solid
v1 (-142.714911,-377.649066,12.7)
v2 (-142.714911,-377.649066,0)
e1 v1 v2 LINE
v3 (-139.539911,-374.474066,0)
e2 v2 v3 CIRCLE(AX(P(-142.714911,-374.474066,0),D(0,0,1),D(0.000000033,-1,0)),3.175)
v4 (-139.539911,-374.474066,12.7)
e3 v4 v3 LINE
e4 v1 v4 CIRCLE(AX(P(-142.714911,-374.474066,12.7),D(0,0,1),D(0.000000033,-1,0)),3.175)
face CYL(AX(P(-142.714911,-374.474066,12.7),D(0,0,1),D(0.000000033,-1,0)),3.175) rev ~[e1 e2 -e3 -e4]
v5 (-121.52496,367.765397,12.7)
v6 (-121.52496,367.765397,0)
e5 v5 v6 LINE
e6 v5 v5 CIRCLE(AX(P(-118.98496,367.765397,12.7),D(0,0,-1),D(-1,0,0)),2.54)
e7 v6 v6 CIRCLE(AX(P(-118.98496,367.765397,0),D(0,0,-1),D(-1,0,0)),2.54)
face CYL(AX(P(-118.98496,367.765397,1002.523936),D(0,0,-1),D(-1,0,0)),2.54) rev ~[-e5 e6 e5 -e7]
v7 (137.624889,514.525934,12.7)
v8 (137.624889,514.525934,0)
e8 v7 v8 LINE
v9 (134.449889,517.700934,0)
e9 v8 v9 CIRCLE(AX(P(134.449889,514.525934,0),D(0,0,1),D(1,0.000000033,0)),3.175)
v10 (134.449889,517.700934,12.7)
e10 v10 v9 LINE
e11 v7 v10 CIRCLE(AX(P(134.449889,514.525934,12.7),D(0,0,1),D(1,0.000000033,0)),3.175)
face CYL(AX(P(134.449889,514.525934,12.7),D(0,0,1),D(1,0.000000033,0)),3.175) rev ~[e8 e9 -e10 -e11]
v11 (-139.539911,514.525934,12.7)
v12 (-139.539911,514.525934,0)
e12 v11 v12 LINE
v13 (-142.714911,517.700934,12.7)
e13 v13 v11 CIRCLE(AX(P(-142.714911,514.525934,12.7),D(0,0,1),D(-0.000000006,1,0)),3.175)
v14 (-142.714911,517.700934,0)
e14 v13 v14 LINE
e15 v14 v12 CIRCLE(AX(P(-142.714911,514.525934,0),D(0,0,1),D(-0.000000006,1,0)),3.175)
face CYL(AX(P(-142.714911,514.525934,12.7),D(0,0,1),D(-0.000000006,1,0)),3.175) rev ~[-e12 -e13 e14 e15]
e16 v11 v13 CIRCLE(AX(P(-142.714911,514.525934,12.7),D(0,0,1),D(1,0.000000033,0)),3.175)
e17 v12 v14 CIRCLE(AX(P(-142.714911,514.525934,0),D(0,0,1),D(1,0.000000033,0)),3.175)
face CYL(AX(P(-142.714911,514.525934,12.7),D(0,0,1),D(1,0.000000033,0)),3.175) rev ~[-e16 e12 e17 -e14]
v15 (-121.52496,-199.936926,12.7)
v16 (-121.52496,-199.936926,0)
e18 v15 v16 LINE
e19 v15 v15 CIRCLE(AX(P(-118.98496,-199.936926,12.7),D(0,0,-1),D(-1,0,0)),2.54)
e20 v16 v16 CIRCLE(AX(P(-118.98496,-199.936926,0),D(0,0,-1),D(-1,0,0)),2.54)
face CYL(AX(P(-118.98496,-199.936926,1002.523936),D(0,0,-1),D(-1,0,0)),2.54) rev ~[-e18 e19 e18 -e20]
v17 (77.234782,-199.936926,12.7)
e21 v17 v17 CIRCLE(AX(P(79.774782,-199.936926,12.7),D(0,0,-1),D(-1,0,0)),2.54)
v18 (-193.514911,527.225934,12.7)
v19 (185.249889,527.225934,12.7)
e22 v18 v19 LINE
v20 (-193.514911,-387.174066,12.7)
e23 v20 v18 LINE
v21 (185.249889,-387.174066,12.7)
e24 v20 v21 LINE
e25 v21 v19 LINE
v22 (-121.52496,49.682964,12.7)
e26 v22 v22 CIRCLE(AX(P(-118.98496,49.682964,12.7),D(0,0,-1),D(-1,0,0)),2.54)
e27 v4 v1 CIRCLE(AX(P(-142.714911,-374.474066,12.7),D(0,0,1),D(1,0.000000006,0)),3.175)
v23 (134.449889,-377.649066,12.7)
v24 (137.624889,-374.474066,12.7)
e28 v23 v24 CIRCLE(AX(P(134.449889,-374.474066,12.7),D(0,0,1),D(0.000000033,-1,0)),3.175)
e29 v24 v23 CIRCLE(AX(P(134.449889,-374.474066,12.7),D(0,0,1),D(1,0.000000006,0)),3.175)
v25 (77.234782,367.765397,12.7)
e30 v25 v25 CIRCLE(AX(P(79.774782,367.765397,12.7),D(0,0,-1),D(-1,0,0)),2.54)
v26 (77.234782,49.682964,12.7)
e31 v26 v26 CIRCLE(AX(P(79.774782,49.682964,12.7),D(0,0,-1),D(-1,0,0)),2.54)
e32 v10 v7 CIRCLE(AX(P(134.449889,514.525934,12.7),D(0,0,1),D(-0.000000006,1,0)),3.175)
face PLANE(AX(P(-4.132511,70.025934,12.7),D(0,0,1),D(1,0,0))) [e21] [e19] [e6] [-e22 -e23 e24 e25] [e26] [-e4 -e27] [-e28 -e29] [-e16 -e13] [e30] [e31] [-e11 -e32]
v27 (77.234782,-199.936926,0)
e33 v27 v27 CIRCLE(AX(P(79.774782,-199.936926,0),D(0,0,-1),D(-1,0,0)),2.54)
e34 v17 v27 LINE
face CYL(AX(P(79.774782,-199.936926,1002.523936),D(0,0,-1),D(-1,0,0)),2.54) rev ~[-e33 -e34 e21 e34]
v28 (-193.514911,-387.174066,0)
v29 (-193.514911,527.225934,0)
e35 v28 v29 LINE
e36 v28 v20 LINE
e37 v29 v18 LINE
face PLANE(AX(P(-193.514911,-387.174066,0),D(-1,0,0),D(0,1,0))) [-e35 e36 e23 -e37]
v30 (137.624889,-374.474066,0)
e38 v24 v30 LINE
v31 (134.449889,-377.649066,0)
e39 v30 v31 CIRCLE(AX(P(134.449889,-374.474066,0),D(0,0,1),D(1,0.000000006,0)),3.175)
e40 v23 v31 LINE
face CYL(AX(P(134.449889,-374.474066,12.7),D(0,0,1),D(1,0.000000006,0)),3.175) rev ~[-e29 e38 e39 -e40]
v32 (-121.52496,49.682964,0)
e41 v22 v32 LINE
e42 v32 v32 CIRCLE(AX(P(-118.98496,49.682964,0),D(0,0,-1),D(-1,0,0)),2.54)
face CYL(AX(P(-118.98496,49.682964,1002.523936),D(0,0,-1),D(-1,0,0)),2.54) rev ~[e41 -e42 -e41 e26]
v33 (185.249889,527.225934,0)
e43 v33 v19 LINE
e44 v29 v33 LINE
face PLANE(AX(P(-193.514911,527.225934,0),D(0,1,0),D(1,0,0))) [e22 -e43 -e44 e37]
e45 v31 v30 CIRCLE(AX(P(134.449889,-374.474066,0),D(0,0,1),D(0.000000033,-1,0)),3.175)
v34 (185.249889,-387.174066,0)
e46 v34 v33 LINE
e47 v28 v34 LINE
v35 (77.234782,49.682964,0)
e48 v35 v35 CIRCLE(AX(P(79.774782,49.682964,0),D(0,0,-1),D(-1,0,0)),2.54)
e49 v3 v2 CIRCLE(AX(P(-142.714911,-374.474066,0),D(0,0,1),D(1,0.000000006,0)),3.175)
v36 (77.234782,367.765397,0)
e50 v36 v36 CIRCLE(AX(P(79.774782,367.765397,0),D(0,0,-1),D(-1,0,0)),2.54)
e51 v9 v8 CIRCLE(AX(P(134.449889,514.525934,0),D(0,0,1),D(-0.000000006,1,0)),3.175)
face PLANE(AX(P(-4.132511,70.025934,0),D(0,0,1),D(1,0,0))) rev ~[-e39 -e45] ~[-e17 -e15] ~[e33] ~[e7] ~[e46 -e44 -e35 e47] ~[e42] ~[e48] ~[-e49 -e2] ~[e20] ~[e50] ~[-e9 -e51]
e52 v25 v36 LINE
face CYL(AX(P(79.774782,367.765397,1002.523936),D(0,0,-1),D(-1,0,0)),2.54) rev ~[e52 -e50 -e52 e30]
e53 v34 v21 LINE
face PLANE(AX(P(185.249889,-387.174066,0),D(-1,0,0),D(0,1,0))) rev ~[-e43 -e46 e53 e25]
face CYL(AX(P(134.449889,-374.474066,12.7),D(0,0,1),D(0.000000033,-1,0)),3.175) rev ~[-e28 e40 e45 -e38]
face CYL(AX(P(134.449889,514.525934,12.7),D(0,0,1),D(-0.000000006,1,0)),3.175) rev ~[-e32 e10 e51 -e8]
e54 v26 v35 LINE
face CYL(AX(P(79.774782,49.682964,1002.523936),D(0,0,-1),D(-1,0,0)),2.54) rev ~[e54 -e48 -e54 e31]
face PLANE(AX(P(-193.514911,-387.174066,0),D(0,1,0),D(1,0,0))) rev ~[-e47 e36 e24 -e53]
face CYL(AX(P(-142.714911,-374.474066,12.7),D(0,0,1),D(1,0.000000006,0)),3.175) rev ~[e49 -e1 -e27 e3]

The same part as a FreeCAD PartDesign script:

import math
import FreeCAD as App
import Part
import Sketcher
Q = App.Units.Quantity

doc = App.newDocument("Part")
body = doc.addObject("PartDesign::Body", "Body")

# Sketch on XY plane
sketch1 = doc.addObject("Sketcher::SketchObject", "Sketch")
body.addObject(sketch1)
sketch1.AttachmentSupport = (doc.XY_Plane, [""])
sketch1.MapMode = "FlatFace"
sketch1.addGeometry(Part.LineSegment(App.Vector(-194, 527, 0), App.Vector(-194, -387, 0)), False)
sketch1.addGeometry(Part.LineSegment(App.Vector(-194, -387, 0), App.Vector(185, -387, 0)), False)
sketch1.addGeometry(Part.LineSegment(App.Vector(185, -387, 0), App.Vector(185, 527, 0)), False)
sketch1.addGeometry(Part.LineSegment(App.Vector(185, 527, 0), App.Vector(-194, 527, 0)), False)
sketch1.addConstraint(Sketcher.Constraint("Coincident", 0, 2, 1, 1))
sketch1.addConstraint(Sketcher.Constraint("Coincident", 1, 2, 2, 1))
sketch1.addConstraint(Sketcher.Constraint("Coincident", 2, 2, 3, 1))
sketch1.addConstraint(Sketcher.Constraint("Coincident", 3, 2, 0, 1))
sketch1.addConstraint(Sketcher.Constraint("Vertical", 0))
sketch1.addConstraint(Sketcher.Constraint("Horizontal", 1))
sketch1.addConstraint(Sketcher.Constraint("Vertical", 2))
sketch1.addConstraint(Sketcher.Constraint("Horizontal", 3))
sketch1.addConstraint(Sketcher.Constraint("DistanceY", 0, 2, 0, 1, Q("36 in")))
sketch1.addConstraint(Sketcher.Constraint("DistanceX", 1, 1, 1, 2, Q("14.912 in")))
sketch1.addConstraint(Sketcher.Constraint("DistanceX", 0, 2, -1, 1, Q("193.514911 mm")))
sketch1.addConstraint(Sketcher.Constraint("DistanceY", 0, 2, -1, 1, Q("387.174066 mm")))
pad1 = doc.addObject("PartDesign::Pad", "Pad")
body.addObject(pad1)
pad1.Profile = sketch1
pad1.Length = Q("0.5 in")

# Sketch on XY plane
sketch2 = doc.addObject("Sketcher::SketchObject", "Sketch001")
body.addObject(sketch2)
sketch2.AttachmentSupport = (doc.XY_Plane, [""])
sketch2.MapMode = "FlatFace"
sketch2.AttachmentOffset = App.Placement(App.Vector(0, 0, 0.5 * 25.4), App.Rotation())
sketch2.addGeometry(Part.ArcOfCircle(Part.Circle(App.Vector(-142.7, 514.5, 0), App.Vector(0, 0, 1), 3.2), math.radians(90), math.radians(360)), False)
sketch2.addGeometry(Part.ArcOfCircle(Part.Circle(App.Vector(-142.7, 514.5, 0), App.Vector(0, 0, 1), 3.2), math.radians(0), math.radians(90)), False)
sketch2.addGeometry(Part.ArcOfCircle(Part.Circle(App.Vector(134.4, 514.5, 0), App.Vector(0, 0, 1), 3.2), math.radians(90), math.radians(360)), False)
sketch2.addGeometry(Part.ArcOfCircle(Part.Circle(App.Vector(134.4, 514.5, 0), App.Vector(0, 0, 1), 3.2), math.radians(0), math.radians(90)), False)
sketch2.addGeometry(Part.ArcOfCircle(Part.Circle(App.Vector(-142.7, -374.5, 0), App.Vector(0, 0, 1), 3.2), math.radians(-90), math.radians(0)), False)
sketch2.addGeometry(Part.ArcOfCircle(Part.Circle(App.Vector(-142.7, -374.5, 0), App.Vector(0, 0, 1), 3.2), math.radians(0), math.radians(270)), False)
sketch2.addGeometry(Part.ArcOfCircle(Part.Circle(App.Vector(134.4, -374.5, 0), App.Vector(0, 0, 1), 3.2), math.radians(-90), math.radians(0)), False)
sketch2.addGeometry(Part.ArcOfCircle(Part.Circle(App.Vector(134.4, -374.5, 0), App.Vector(0, 0, 1), 3.2), math.radians(0), math.radians(270)), False)
sketch2.addConstraint(Sketcher.Constraint("Tangent", 0, 1, 1, 2))
sketch2.addConstraint(Sketcher.Constraint("Coincident", 1, 1, 0, 2))
sketch2.addConstraint(Sketcher.Constraint("Tangent", 2, 1, 3, 2))
sketch2.addConstraint(Sketcher.Constraint("Coincident", 3, 1, 2, 2))
sketch2.addConstraint(Sketcher.Constraint("Tangent", 4, 1, 5, 2))
sketch2.addConstraint(Sketcher.Constraint("Coincident", 5, 1, 4, 2))
sketch2.addConstraint(Sketcher.Constraint("Tangent", 6, 1, 7, 2))
sketch2.addConstraint(Sketcher.Constraint("Coincident", 7, 1, 6, 2))
sketch2.addConstraint(Sketcher.Constraint("Equal", 1, 2))
sketch2.addConstraint(Sketcher.Constraint("Equal", 3, 4))
sketch2.addConstraint(Sketcher.Constraint("Equal", 5, 6))
sketch2.addConstraint(Sketcher.Constraint("Horizontal", 1, 3, 2, 3))
sketch2.addConstraint(Sketcher.Constraint("Horizontal", 5, 3, 6, 3))
sketch2.addConstraint(Sketcher.Constraint("Horizontal", 3, 3, 1, 1))
sketch2.addConstraint(Sketcher.Constraint("Horizontal", 1, 1, 3, 1))
sketch2.addConstraint(Sketcher.Constraint("Horizontal", 7, 3, 5, 1))
sketch2.addConstraint(Sketcher.Constraint("Horizontal", 5, 1, 7, 1))
sketch2.addConstraint(Sketcher.Constraint("Vertical", 1, 3, 4, 3))
sketch2.addConstraint(Sketcher.Constraint("Vertical", 3, 3, 6, 3))
sketch2.addConstraint(Sketcher.Constraint("Vertical", 5, 3, 0, 1))
sketch2.addConstraint(Sketcher.Constraint("Vertical", 7, 3, 2, 1))
sketch2.addConstraint(Sketcher.Constraint("Vertical", 0, 1, 4, 1))
sketch2.addConstraint(Sketcher.Constraint("Vertical", 2, 1, 6, 1))
sketch2.addConstraint(Sketcher.Constraint("Radius", 0, Q("0.125 in")))
sketch2.addConstraint(Sketcher.Constraint("DistanceY", 4, 3, 1, 3, Q("35 in")))
sketch2.addConstraint(Sketcher.Constraint("DistanceX", 0, 3, 2, 3, Q("10.912 in")))
sketch2.addConstraint(Sketcher.Constraint("DistanceX", 0, 3, -1, 1, Q("142.714911 mm")))
sketch2.addConstraint(Sketcher.Constraint("DistanceY", -1, 1, 0, 3, Q("514.525934 mm")))
pocket1 = doc.addObject("PartDesign::Pocket", "Pocket")
body.addObject(pocket1)
pocket1.Profile = sketch2
pocket1.Type = "ThroughAll"

# Sketch on XY plane
sketch3 = doc.addObject("Sketcher::SketchObject", "Sketch002")
body.addObject(sketch3)
sketch3.AttachmentSupport = (doc.XY_Plane, [""])
sketch3.MapMode = "FlatFace"
sketch3.AttachmentOffset = App.Placement(App.Vector(0, 0, 0.5 * 25.4), App.Rotation())
sketch3.addGeometry(Part.Circle(App.Vector(-119, 49.7, 0), App.Vector(0, 0, 1), 2.5), False)
sketch3.addGeometry(Part.Circle(App.Vector(79.8, 49.7, 0), App.Vector(0, 0, 1), 2.5), False)
sketch3.addGeometry(Part.Circle(App.Vector(-119, 367.8, 0), App.Vector(0, 0, 1), 2.5), False)
sketch3.addGeometry(Part.Circle(App.Vector(79.8, 367.8, 0), App.Vector(0, 0, 1), 2.5), False)
sketch3.addGeometry(Part.Circle(App.Vector(-119, -199.9, 0), App.Vector(0, 0, 1), 2.5), False)
sketch3.addGeometry(Part.Circle(App.Vector(79.8, -199.9, 0), App.Vector(0, 0, 1), 2.5), False)
sketch3.addConstraint(Sketcher.Constraint("Equal", 0, 1))
sketch3.addConstraint(Sketcher.Constraint("Equal", 1, 2))
sketch3.addConstraint(Sketcher.Constraint("Equal", 2, 3))
sketch3.addConstraint(Sketcher.Constraint("Equal", 3, 4))
sketch3.addConstraint(Sketcher.Constraint("Equal", 4, 5))
sketch3.addConstraint(Sketcher.Constraint("Horizontal", 0, 3, 1, 3))
sketch3.addConstraint(Sketcher.Constraint("Horizontal", 2, 3, 3, 3))
sketch3.addConstraint(Sketcher.Constraint("Horizontal", 4, 3, 5, 3))
sketch3.addConstraint(Sketcher.Constraint("Vertical", 0, 3, 2, 3))
sketch3.addConstraint(Sketcher.Constraint("Vertical", 1, 3, 3, 3))
sketch3.addConstraint(Sketcher.Constraint("Vertical", 2, 3, 4, 3))
sketch3.addConstraint(Sketcher.Constraint("Vertical", 3, 3, 5, 3))
sketch3.addConstraint(Sketcher.Constraint("Diameter", 0, Q("0.2 in")))
sketch3.addConstraint(Sketcher.Constraint("DistanceX", 0, 3, -1, 1, Q("118.98496 mm")))
sketch3.addConstraint(Sketcher.Constraint("DistanceX", -1, 1, 1, 3, Q("79.774782 mm")))
sketch3.addConstraint(Sketcher.Constraint("DistanceY", 4, 3, 0, 3, Q("249.61989 mm")))
sketch3.addConstraint(Sketcher.Constraint("DistanceY", -1, 1, 0, 3, Q("49.682964 mm")))
sketch3.addConstraint(Sketcher.Constraint("DistanceY", -1, 1, 2, 3, Q("367.765397 mm")))
doc.recompute()
hole = doc.addObject("PartDesign::Hole", "Hole")
body.addObject(hole)
hole.Profile = sketch3
hole.ThreadType = "None"
hole.Diameter = Q("0.2 in")
hole.DepthType = "ThroughAll"

doc.recompute()
